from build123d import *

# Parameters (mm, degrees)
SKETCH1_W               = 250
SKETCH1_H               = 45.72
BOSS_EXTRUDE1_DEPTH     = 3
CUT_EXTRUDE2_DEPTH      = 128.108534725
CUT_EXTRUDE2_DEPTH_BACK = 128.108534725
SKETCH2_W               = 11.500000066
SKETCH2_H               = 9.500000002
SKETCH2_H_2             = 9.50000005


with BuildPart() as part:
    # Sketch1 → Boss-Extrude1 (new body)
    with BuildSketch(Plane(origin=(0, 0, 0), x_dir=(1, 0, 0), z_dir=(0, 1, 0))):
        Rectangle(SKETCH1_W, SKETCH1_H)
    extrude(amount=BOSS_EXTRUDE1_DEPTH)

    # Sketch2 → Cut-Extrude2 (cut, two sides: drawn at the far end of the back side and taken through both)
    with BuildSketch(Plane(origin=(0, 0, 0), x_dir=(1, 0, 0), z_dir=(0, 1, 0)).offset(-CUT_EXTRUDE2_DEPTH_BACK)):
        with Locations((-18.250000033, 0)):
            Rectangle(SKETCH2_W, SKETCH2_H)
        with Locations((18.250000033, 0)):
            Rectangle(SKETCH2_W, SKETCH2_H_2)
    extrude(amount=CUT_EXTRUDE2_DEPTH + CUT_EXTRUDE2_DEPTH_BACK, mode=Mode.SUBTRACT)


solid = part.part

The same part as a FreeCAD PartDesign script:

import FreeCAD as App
import Part
import Sketcher


def add_polygon(sketch, points):
    """Adds a closed chain of lines whose ends are joined by coincident constraints."""
    first, n = sketch.GeometryCount, len(points)
    for a, b in zip(points, points[1:] + points[:1]):
        sketch.addGeometry(Part.LineSegment(App.Vector(*a, 0), App.Vector(*b, 0)), False)
    for i in range(n):
        sketch.addConstraint(Sketcher.Constraint("Coincident", first + i, 2, first + (i + 1) % n, 1))

doc = App.newDocument("Part")
params = doc.addObject("Spreadsheet::Sheet", "Params")
for row, (alias, value) in enumerate([
    ("sketch1_width", "250 mm"),
    ("sketch1_height", "45.72 mm"),
    ("pad1_length", "3 mm"),
    ("sketch2_width", "11.5 mm"),
    ("sketch2_height", "9.5 mm"),
], start=1):
    params.set(f"A{row}", alias)
    params.set(f"B{row}", "=" + value)
    params.setAlias(f"B{row}", alias)

body = doc.addObject("PartDesign::Body", "Body")

# Sketch on XZ plane
sketch1 = body.newObject("Sketcher::SketchObject", "Sketch")
sketch1.AttachmentSupport = (doc.getObject("XZ_Plane"), [""])
sketch1.MapMode = "FlatFace"
add_polygon(sketch1, [(-125, -22.86), (-125, 22.86), (125, 22.86), (125, -22.86)])  # lines 0-3
sketch1.addConstraint([
    Sketcher.Constraint("Vertical", 0),
    Sketcher.Constraint("Horizontal", 1),
    Sketcher.Constraint("Vertical", 2),
    Sketcher.Constraint("Horizontal", 3),
    Sketcher.Constraint("Symmetric", 0, 2, 2, 2, -1, 1),
    Sketcher.Constraint("DistanceX", 1, 1, 1, 2, 250.0),
    Sketcher.Constraint("DistanceY", 0, 1, 0, 2, 45.72),
])
sketch1.setExpression("Constraints[9]", "Params.sketch1_width")
sketch1.setExpression("Constraints[10]", "Params.sketch1_height")
pad1 = body.newObject("PartDesign::Pad", "Pad")
pad1.Profile = sketch1
pad1.setExpression("Length", "Params.pad1_length")
pad1.Reversed = True

# Sketch on XZ plane
sketch2 = body.newObject("Sketcher::SketchObject", "Sketch001")
sketch2.AttachmentSupport = (doc.getObject("XZ_Plane"), [""])
sketch2.MapMode = "FlatFace"
add_polygon(sketch2, [(-24, -4.75), (-24, 4.75), (-12.5, 4.75), (-12.5, -4.75)])  # lines 0-3
add_polygon(sketch2, [(12.5, -4.75), (12.5, 4.75), (24, 4.75), (24, -4.75)])  # lines 4-7
sketch2.addConstraint([
    Sketcher.Constraint("Vertical", 0),
    Sketcher.Constraint("Horizontal", 1),
    Sketcher.Constraint("Vertical", 2),
    Sketcher.Constraint("Horizontal", 3),
    Sketcher.Constraint("Vertical", 4),
    Sketcher.Constraint("Horizontal", 5),
    Sketcher.Constraint("Vertical", 6),
    Sketcher.Constraint("Horizontal", 7),
    Sketcher.Constraint("Symmetric", 2, 2, 4, 2, -1, 1),
    Sketcher.Constraint("Symmetric", 0, 2, 6, 2, -1, 1),
    Sketcher.Constraint("Horizontal", 1, 2, 4, 2),
    Sketcher.Constraint("DistanceX", 1, 1, 1, 2, 11.5),
    Sketcher.Constraint("DistanceY", 0, 1, 0, 2, 9.5),
    Sketcher.Constraint("DistanceX", 0, 2, -1, 1, 24.0),
])
sketch2.setExpression("Constraints[19]", "Params.sketch2_width")
sketch2.setExpression("Constraints[20]", "Params.sketch2_height")
pocket1 = body.newObject("PartDesign::Pocket", "Pocket")
pocket1.Profile = sketch2
pocket1.Type = "ThroughAll"
pocket1.Midplane = True

doc.recompute()
